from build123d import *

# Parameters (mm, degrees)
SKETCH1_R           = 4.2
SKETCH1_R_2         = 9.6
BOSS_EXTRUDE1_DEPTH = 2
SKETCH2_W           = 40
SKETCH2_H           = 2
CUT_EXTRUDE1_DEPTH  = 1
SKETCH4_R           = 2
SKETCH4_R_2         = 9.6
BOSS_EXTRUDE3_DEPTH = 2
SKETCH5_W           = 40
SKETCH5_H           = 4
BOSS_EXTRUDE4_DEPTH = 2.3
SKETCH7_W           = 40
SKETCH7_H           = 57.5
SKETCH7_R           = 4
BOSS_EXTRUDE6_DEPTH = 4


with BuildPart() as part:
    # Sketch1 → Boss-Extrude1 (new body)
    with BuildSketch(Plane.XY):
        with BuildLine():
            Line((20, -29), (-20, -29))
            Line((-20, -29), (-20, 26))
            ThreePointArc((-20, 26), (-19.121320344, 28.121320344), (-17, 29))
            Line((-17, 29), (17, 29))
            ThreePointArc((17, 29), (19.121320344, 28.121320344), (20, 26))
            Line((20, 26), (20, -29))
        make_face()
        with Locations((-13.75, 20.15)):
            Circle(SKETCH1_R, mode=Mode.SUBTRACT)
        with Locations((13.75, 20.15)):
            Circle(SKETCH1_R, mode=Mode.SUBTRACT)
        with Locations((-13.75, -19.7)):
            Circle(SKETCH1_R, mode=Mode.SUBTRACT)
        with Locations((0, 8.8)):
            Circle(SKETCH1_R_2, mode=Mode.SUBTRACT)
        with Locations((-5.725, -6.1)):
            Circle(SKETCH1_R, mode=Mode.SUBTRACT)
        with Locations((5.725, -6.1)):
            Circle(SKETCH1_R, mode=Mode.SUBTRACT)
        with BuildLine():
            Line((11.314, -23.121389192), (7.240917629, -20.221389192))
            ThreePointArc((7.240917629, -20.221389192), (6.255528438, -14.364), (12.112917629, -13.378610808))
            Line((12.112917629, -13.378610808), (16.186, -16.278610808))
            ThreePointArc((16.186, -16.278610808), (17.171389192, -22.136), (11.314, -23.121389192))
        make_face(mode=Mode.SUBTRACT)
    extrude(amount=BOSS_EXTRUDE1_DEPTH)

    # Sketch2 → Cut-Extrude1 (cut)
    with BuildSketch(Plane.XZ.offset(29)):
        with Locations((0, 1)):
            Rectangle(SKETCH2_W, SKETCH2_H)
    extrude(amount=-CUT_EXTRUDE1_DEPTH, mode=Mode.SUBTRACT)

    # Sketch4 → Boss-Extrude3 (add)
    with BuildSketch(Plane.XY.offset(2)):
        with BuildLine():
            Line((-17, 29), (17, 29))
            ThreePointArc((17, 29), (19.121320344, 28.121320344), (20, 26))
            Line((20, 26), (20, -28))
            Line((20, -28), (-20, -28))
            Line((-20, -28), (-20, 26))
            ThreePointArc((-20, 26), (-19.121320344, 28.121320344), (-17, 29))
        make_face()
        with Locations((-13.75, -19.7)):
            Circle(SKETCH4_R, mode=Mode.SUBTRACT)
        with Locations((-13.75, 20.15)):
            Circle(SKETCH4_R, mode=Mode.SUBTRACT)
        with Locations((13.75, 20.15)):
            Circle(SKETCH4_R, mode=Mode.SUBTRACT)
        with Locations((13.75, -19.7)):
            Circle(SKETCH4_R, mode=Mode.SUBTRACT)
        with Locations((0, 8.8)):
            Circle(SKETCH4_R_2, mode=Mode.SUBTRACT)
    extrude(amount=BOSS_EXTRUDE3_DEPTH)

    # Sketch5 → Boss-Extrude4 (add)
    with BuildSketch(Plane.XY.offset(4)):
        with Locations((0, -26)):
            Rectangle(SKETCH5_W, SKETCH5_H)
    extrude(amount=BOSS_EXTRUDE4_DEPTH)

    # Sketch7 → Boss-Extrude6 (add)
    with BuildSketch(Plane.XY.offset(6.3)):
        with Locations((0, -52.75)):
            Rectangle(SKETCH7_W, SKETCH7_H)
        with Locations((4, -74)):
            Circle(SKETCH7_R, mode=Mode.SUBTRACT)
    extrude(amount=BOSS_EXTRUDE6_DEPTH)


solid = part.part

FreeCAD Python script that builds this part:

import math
import FreeCAD as App
import Part
import Sketcher

V = App.Vector

doc = App.newDocument("Part")
body = doc.addObject("PartDesign::Body", "Body")

sketch1 = body.newObject("Sketcher::SketchObject", "Sketch")
sketch1.AttachmentSupport = (doc.getObject("XY_Plane"), [""])
sketch1.MapMode = "FlatFace"
sketch1.addGeometry([
    Part.LineSegment(V(-20, -29, 0), V(20, -29, 0)),
    Part.LineSegment(V(20, -29, 0), V(20, 26, 0)),
    Part.ArcOfCircle(Part.Circle(V(17, 26, 0), V(0, 0, 1), 3), math.radians(0), math.radians(90)),
    Part.LineSegment(V(17, 29, 0), V(-17, 29, 0)),
    Part.ArcOfCircle(Part.Circle(V(-17, 26, 0), V(0, 0, 1), 3), math.radians(90), math.radians(180)),
    Part.LineSegment(V(-20, 26, 0), V(-20, -29, 0)),
    Part.LineSegment(V(11.3, -23.1, 0), V(7.2, -20.2, 0)),
    Part.ArcOfCircle(Part.Circle(V(9.7, -16.8, 0), V(0, 0, 1), 4.2), math.radians(55), math.radians(235)),
    Part.LineSegment(V(12.1, -13.4, 0), V(16.2, -16.3, 0)),
    Part.ArcOfCircle(Part.Circle(V(13.8, -19.7, 0), V(0, 0, 1), 4.2), math.radians(-125), math.radians(55)),
    Part.Circle(V(5.7, -6.1, 0), V(0, 0, 1), 4.2),
    Part.Circle(V(-13.8, -19.7, 0), V(0, 0, 1), 4.2),
    Part.Circle(V(-5.7, -6.1, 0), V(0, 0, 1), 4.2),
    Part.Circle(V(13.8, 20.1, 0), V(0, 0, 1), 4.2),
    Part.Circle(V(0, 8.8, 0), V(0, 0, 1), 9.6),
    Part.Circle(V(-13.8, 20.1, 0), V(0, 0, 1), 4.2),
], False)
sketch1.addConstraint([
    Sketcher.Constraint("Coincident", 0, 2, 1, 1),
    Sketcher.Constraint("Tangent", 1, 2, 2, 1),
    Sketcher.Constraint("Tangent", 2, 2, 3, 1),
    Sketcher.Constraint("Tangent", 3, 2, 4, 1),
    Sketcher.Constraint("Tangent", 4, 2, 5, 1),
    Sketcher.Constraint("Coincident", 5, 2, 0, 1),
    Sketcher.Constraint("Tangent", 6, 2, 7, 2),
    Sketcher.Constraint("Tangent", 7, 1, 8, 1),
    Sketcher.Constraint("Tangent", 8, 2, 9, 2),
    Sketcher.Constraint("Tangent", 9, 1, 6, 1),
    Sketcher.Constraint("Horizontal", 0),
    Sketcher.Constraint("Vertical", 1),
    Sketcher.Constraint("Horizontal", 3),
    Sketcher.Constraint("Vertical", 5),
    Sketcher.Constraint("Equal", 2, 4),
    Sketcher.Constraint("Equal", 7, 9),
    Sketcher.Constraint("Equal", 9, 10),
    Sketcher.Constraint("Equal", 10, 11),
    Sketcher.Constraint("Equal", 11, 12),
    Sketcher.Constraint("Equal", 12, 13),
    Sketcher.Constraint("Equal", 13, 15),
    Sketcher.Constraint("Symmetric", 9, 3, 11, 3, -2),
    Sketcher.Constraint("Symmetric", 10, 3, 12, 3, -2),
    Sketcher.Constraint("Symmetric", 13, 3, 15, 3, -2),
    Sketcher.Constraint("PointOnObject", 14, 3, -2),
    Sketcher.Constraint("Vertical", 9, 3, 13, 3),
    Sketcher.Constraint("Radius", 2, 3.0),
    Sketcher.Constraint("Diameter", 10, 8.4),
    Sketcher.Constraint("Diameter", 14, 19.2),
    Sketcher.Constraint("DistanceX", 0, 1, 0, 2, 40.0),
    Sketcher.Constraint("DistanceY", 1, 1, 1, 2, 55.0),
    Sketcher.Constraint("Distance", 6, 5.0),
    Sketcher.Constraint("DistanceX", -1, 1, 2, 3, 17.0),
    Sketcher.Constraint("DistanceY", -1, 1, 2, 3, 26.0),
    Sketcher.Constraint("DistanceY", 7, 3, -1, 1, 16.8),
    Sketcher.Constraint("DistanceY", 9, 3, -1, 1, 19.7),
    Sketcher.Constraint("DistanceY", 10, 3, -1, 1, 6.1),
    Sketcher.Constraint("DistanceY", -1, 1, 14, 3, 8.8),
    Sketcher.Constraint("DistanceX", 11, 3, 9, 3, 27.5),
    Sketcher.Constraint("DistanceY", -1, 1, 13, 3, 20.15),
    Sketcher.Constraint("DistanceX", 12, 3, 10, 3, 11.45),
])
pad1 = body.newObject("PartDesign::Pad", "Pad")
pad1.Profile = sketch1
pad1.Length = 2

sketch2 = body.newObject("Sketcher::SketchObject", "Sketch001")
sketch2.AttachmentSupport = (doc.getObject("XZ_Plane"), [""])
sketch2.MapMode = "FlatFace"
sketch2.AttachmentOffset = App.Placement(V(0, 0, 29), App.Rotation())
sketch2.addGeometry([
    Part.LineSegment(V(-20, 2, 0), V(-20, 0, 0)),
    Part.LineSegment(V(-20, 0, 0), V(20, 0, 0)),
    Part.LineSegment(V(20, 0, 0), V(20, 2, 0)),
    Part.LineSegment(V(20, 2, 0), V(-20, 2, 0)),
], False)
sketch2.addConstraint([
    Sketcher.Constraint("Coincident", 0, 2, 1, 1),
    Sketcher.Constraint("Coincident", 1, 2, 2, 1),
    Sketcher.Constraint("Coincident", 2, 2, 3, 1),
    Sketcher.Constraint("Coincident", 3, 2, 0, 1),
    Sketcher.Constraint("Vertical", 0),
    Sketcher.Constraint("Horizontal", 1),
    Sketcher.Constraint("Vertical", 2),
    Sketcher.Constraint("Horizontal", 3),
    Sketcher.Constraint("Symmetric", 0, 2, 1, 2, -1, 1),
    Sketcher.Constraint("DistanceX", 1, 1, 1, 2, 40.0),
    Sketcher.Constraint("DistanceY", 0, 2, 0, 1, 2.0),
])
pocket1 = body.newObject("PartDesign::Pocket", "Pocket")
pocket1.Profile = sketch2
pocket1.Length = 1

sketch3 = body.newObject("Sketcher::SketchObject", "Sketch002")
sketch3.AttachmentSupport = (doc.getObject("XY_Plane"), [""])
sketch3.MapMode = "FlatFace"
sketch3.AttachmentOffset = App.Placement(V(0, 0, 2), App.Rotation())
sketch3.addGeometry([
    Part.LineSegment(V(17, 29, 0), V(-17, 29, 0)),
    Part.ArcOfCircle(Part.Circle(V(-17, 26, 0), V(0, 0, 1), 3), math.radians(90), math.radians(180)),
    Part.LineSegment(V(-20, 26, 0), V(-20, -28, 0)),
    Part.LineSegment(V(-20, -28, 0), V(20, -28, 0)),
    Part.LineSegment(V(20, -28, 0), V(20, 26, 0)),
    Part.ArcOfCircle(Part.Circle(V(17, 26, 0), V(0, 0, 1), 3), math.radians(0), math.radians(90)),
    Part.Circle(V(13.8, -19.7, 0), V(0, 0, 1), 2),
    Part.Circle(V(-13.8, -19.7, 0), V(0, 0, 1), 2),
    Part.Circle(V(13.8, 20.1, 0), V(0, 0, 1), 2),
    Part.Circle(V(0, 8.8, 0), V(0, 0, 1), 9.6),
    Part.Circle(V(-13.8, 20.1, 0), V(0, 0, 1), 2),
], False)
sketch3.addConstraint([
    Sketcher.Constraint("Tangent", 0, 2, 1, 1),
    Sketcher.Constraint("Tangent", 1, 2, 2, 1),
    Sketcher.Constraint("Coincident", 2, 2, 3, 1),
    Sketcher.Constraint("Coincident", 3, 2, 4, 1),
    Sketcher.Constraint("Tangent", 4, 2, 5, 1),
    Sketcher.Constraint("Tangent", 5, 2, 0, 1),
    Sketcher.Constraint("Horizontal", 0),
    Sketcher.Constraint("Vertical", 2),
    Sketcher.Constraint("Horizontal", 3),
    Sketcher.Constraint("Vertical", 4),
    Sketcher.Constraint("Equal", 1, 5),
    Sketcher.Constraint("Equal", 6, 7),
    Sketcher.Constraint("Equal", 7, 8),
    Sketcher.Constraint("Equal", 8, 10),
    Sketcher.Constraint("Symmetric", 6, 3, 7, 3, -2),
    Sketcher.Constraint("Symmetric", 8, 3, 10, 3, -2),
    Sketcher.Constraint("PointOnObject", 9, 3, -2),
    Sketcher.Constraint("Vertical", 6, 3, 8, 3),
    Sketcher.Constraint("Diameter", 6, 4.0),
    Sketcher.Constraint("Radius", 1, 3.0),
    Sketcher.Constraint("Diameter", 9, 19.2),
    Sketcher.Constraint("DistanceX", 0, 2, 0, 1, 34.0),
    Sketcher.Constraint("DistanceY", 2, 2, 2, 1, 54.0),
    Sketcher.Constraint("DistanceX", 1, 3, -1, 1, 17.0),
    Sketcher.Constraint("DistanceY", -1, 1, 1, 3, 26.0),
    Sketcher.Constraint("DistanceY", 6, 3, -1, 1, 19.7),
    Sketcher.Constraint("DistanceY", -1, 1, 9, 3, 8.8),
    Sketcher.Constraint("DistanceX", 7, 3, 6, 3, 27.5),
    Sketcher.Constraint("DistanceY", -1, 1, 8, 3, 20.15),
])
pad2 = body.newObject("PartDesign::Pad", "Pad001")
pad2.Profile = sketch3
pad2.Length = 2

sketch4 = body.newObject("Sketcher::SketchObject", "Sketch003")
sketch4.AttachmentSupport = (doc.getObject("XY_Plane"), [""])
sketch4.MapMode = "FlatFace"
sketch4.AttachmentOffset = App.Placement(V(0, 0, 4), App.Rotation())
sketch4.addGeometry([
    Part.LineSegment(V(-20, -24, 0), V(-20, -28, 0)),
    Part.LineSegment(V(-20, -28, 0), V(20, -28, 0)),
    Part.LineSegment(V(20, -28, 0), V(20, -24, 0)),
    Part.LineSegment(V(20, -24, 0), V(-20, -24, 0)),
], False)
sketch4.addConstraint([
    Sketcher.Constraint("Coincident", 0, 2, 1, 1),
    Sketcher.Constraint("Coincident", 1, 2, 2, 1),
    Sketcher.Constraint("Coincident", 2, 2, 3, 1),
    Sketcher.Constraint("Coincident", 3, 2, 0, 1),
    Sketcher.Constraint("Vertical", 0),
    Sketcher.Constraint("Horizontal", 1),
    Sketcher.Constraint("Vertical", 2),
    Sketcher.Constraint("Horizontal", 3),
    Sketcher.Constraint("DistanceX", 1, 1, 1, 2, 40.0),
    Sketcher.Constraint("DistanceY", 0, 2, 0, 1, 4.0),
    Sketcher.Constraint("DistanceX", 0, 2, -1, 1, 20.0),
    Sketcher.Constraint("DistanceY", 0, 2, -1, 1, 28.0),
])
pad3 = body.newObject("PartDesign::Pad", "Pad002")
pad3.Profile = sketch4
pad3.Length = 2.3

sketch5 = body.newObject("Sketcher::SketchObject", "Sketch004")
sketch5.AttachmentSupport = (doc.getObject("XY_Plane"), [""])
sketch5.MapMode = "FlatFace"
sketch5.AttachmentOffset = App.Placement(V(0, 0, 6.3), App.Rotation())
sketch5.addGeometry([
    Part.LineSegment(V(-20, -24, 0), V(-20, -81.5, 0)),
    Part.LineSegment(V(-20, -81.5, 0), V(20, -81.5, 0)),
    Part.LineSegment(V(20, -81.5, 0), V(20, -24, 0)),
    Part.LineSegment(V(20, -24, 0), V(-20, -24, 0)),
    Part.Circle(V(4, -74, 0), V(0, 0, 1), 4),
], False)
sketch5.addConstraint([
    Sketcher.Constraint("Coincident", 0, 2, 1, 1),
    Sketcher.Constraint("Coincident", 1, 2, 2, 1),
    Sketcher.Constraint("Coincident", 2, 2, 3, 1),
    Sketcher.Constraint("Coincident", 3, 2, 0, 1),
    Sketcher.Constraint("Vertical", 0),
    Sketcher.Constraint("Horizontal", 1),
    Sketcher.Constraint("Vertical", 2),
    Sketcher.Constraint("Horizontal", 3),
    Sketcher.Constraint("Diameter", 4, 8.0),
    Sketcher.Constraint("DistanceX", 1, 1, 1, 2, 40.0),
    Sketcher.Constraint("DistanceY", 0, 2, 0, 1, 57.5),
    Sketcher.Constraint("DistanceX", -1, 1, 4, 3, 4.0),
    Sketcher.Constraint("DistanceY", 4, 3, -1, 1, 74.0),
    Sketcher.Constraint("DistanceX", 0, 2, -1, 1, 20.0),
    Sketcher.Constraint("DistanceY", 2, 2, -1, 1, 24.0),
])
pad4 = body.newObject("PartDesign::Pad", "Pad003")
pad4.Profile = sketch5
pad4.Length = 4

doc.recompute()
